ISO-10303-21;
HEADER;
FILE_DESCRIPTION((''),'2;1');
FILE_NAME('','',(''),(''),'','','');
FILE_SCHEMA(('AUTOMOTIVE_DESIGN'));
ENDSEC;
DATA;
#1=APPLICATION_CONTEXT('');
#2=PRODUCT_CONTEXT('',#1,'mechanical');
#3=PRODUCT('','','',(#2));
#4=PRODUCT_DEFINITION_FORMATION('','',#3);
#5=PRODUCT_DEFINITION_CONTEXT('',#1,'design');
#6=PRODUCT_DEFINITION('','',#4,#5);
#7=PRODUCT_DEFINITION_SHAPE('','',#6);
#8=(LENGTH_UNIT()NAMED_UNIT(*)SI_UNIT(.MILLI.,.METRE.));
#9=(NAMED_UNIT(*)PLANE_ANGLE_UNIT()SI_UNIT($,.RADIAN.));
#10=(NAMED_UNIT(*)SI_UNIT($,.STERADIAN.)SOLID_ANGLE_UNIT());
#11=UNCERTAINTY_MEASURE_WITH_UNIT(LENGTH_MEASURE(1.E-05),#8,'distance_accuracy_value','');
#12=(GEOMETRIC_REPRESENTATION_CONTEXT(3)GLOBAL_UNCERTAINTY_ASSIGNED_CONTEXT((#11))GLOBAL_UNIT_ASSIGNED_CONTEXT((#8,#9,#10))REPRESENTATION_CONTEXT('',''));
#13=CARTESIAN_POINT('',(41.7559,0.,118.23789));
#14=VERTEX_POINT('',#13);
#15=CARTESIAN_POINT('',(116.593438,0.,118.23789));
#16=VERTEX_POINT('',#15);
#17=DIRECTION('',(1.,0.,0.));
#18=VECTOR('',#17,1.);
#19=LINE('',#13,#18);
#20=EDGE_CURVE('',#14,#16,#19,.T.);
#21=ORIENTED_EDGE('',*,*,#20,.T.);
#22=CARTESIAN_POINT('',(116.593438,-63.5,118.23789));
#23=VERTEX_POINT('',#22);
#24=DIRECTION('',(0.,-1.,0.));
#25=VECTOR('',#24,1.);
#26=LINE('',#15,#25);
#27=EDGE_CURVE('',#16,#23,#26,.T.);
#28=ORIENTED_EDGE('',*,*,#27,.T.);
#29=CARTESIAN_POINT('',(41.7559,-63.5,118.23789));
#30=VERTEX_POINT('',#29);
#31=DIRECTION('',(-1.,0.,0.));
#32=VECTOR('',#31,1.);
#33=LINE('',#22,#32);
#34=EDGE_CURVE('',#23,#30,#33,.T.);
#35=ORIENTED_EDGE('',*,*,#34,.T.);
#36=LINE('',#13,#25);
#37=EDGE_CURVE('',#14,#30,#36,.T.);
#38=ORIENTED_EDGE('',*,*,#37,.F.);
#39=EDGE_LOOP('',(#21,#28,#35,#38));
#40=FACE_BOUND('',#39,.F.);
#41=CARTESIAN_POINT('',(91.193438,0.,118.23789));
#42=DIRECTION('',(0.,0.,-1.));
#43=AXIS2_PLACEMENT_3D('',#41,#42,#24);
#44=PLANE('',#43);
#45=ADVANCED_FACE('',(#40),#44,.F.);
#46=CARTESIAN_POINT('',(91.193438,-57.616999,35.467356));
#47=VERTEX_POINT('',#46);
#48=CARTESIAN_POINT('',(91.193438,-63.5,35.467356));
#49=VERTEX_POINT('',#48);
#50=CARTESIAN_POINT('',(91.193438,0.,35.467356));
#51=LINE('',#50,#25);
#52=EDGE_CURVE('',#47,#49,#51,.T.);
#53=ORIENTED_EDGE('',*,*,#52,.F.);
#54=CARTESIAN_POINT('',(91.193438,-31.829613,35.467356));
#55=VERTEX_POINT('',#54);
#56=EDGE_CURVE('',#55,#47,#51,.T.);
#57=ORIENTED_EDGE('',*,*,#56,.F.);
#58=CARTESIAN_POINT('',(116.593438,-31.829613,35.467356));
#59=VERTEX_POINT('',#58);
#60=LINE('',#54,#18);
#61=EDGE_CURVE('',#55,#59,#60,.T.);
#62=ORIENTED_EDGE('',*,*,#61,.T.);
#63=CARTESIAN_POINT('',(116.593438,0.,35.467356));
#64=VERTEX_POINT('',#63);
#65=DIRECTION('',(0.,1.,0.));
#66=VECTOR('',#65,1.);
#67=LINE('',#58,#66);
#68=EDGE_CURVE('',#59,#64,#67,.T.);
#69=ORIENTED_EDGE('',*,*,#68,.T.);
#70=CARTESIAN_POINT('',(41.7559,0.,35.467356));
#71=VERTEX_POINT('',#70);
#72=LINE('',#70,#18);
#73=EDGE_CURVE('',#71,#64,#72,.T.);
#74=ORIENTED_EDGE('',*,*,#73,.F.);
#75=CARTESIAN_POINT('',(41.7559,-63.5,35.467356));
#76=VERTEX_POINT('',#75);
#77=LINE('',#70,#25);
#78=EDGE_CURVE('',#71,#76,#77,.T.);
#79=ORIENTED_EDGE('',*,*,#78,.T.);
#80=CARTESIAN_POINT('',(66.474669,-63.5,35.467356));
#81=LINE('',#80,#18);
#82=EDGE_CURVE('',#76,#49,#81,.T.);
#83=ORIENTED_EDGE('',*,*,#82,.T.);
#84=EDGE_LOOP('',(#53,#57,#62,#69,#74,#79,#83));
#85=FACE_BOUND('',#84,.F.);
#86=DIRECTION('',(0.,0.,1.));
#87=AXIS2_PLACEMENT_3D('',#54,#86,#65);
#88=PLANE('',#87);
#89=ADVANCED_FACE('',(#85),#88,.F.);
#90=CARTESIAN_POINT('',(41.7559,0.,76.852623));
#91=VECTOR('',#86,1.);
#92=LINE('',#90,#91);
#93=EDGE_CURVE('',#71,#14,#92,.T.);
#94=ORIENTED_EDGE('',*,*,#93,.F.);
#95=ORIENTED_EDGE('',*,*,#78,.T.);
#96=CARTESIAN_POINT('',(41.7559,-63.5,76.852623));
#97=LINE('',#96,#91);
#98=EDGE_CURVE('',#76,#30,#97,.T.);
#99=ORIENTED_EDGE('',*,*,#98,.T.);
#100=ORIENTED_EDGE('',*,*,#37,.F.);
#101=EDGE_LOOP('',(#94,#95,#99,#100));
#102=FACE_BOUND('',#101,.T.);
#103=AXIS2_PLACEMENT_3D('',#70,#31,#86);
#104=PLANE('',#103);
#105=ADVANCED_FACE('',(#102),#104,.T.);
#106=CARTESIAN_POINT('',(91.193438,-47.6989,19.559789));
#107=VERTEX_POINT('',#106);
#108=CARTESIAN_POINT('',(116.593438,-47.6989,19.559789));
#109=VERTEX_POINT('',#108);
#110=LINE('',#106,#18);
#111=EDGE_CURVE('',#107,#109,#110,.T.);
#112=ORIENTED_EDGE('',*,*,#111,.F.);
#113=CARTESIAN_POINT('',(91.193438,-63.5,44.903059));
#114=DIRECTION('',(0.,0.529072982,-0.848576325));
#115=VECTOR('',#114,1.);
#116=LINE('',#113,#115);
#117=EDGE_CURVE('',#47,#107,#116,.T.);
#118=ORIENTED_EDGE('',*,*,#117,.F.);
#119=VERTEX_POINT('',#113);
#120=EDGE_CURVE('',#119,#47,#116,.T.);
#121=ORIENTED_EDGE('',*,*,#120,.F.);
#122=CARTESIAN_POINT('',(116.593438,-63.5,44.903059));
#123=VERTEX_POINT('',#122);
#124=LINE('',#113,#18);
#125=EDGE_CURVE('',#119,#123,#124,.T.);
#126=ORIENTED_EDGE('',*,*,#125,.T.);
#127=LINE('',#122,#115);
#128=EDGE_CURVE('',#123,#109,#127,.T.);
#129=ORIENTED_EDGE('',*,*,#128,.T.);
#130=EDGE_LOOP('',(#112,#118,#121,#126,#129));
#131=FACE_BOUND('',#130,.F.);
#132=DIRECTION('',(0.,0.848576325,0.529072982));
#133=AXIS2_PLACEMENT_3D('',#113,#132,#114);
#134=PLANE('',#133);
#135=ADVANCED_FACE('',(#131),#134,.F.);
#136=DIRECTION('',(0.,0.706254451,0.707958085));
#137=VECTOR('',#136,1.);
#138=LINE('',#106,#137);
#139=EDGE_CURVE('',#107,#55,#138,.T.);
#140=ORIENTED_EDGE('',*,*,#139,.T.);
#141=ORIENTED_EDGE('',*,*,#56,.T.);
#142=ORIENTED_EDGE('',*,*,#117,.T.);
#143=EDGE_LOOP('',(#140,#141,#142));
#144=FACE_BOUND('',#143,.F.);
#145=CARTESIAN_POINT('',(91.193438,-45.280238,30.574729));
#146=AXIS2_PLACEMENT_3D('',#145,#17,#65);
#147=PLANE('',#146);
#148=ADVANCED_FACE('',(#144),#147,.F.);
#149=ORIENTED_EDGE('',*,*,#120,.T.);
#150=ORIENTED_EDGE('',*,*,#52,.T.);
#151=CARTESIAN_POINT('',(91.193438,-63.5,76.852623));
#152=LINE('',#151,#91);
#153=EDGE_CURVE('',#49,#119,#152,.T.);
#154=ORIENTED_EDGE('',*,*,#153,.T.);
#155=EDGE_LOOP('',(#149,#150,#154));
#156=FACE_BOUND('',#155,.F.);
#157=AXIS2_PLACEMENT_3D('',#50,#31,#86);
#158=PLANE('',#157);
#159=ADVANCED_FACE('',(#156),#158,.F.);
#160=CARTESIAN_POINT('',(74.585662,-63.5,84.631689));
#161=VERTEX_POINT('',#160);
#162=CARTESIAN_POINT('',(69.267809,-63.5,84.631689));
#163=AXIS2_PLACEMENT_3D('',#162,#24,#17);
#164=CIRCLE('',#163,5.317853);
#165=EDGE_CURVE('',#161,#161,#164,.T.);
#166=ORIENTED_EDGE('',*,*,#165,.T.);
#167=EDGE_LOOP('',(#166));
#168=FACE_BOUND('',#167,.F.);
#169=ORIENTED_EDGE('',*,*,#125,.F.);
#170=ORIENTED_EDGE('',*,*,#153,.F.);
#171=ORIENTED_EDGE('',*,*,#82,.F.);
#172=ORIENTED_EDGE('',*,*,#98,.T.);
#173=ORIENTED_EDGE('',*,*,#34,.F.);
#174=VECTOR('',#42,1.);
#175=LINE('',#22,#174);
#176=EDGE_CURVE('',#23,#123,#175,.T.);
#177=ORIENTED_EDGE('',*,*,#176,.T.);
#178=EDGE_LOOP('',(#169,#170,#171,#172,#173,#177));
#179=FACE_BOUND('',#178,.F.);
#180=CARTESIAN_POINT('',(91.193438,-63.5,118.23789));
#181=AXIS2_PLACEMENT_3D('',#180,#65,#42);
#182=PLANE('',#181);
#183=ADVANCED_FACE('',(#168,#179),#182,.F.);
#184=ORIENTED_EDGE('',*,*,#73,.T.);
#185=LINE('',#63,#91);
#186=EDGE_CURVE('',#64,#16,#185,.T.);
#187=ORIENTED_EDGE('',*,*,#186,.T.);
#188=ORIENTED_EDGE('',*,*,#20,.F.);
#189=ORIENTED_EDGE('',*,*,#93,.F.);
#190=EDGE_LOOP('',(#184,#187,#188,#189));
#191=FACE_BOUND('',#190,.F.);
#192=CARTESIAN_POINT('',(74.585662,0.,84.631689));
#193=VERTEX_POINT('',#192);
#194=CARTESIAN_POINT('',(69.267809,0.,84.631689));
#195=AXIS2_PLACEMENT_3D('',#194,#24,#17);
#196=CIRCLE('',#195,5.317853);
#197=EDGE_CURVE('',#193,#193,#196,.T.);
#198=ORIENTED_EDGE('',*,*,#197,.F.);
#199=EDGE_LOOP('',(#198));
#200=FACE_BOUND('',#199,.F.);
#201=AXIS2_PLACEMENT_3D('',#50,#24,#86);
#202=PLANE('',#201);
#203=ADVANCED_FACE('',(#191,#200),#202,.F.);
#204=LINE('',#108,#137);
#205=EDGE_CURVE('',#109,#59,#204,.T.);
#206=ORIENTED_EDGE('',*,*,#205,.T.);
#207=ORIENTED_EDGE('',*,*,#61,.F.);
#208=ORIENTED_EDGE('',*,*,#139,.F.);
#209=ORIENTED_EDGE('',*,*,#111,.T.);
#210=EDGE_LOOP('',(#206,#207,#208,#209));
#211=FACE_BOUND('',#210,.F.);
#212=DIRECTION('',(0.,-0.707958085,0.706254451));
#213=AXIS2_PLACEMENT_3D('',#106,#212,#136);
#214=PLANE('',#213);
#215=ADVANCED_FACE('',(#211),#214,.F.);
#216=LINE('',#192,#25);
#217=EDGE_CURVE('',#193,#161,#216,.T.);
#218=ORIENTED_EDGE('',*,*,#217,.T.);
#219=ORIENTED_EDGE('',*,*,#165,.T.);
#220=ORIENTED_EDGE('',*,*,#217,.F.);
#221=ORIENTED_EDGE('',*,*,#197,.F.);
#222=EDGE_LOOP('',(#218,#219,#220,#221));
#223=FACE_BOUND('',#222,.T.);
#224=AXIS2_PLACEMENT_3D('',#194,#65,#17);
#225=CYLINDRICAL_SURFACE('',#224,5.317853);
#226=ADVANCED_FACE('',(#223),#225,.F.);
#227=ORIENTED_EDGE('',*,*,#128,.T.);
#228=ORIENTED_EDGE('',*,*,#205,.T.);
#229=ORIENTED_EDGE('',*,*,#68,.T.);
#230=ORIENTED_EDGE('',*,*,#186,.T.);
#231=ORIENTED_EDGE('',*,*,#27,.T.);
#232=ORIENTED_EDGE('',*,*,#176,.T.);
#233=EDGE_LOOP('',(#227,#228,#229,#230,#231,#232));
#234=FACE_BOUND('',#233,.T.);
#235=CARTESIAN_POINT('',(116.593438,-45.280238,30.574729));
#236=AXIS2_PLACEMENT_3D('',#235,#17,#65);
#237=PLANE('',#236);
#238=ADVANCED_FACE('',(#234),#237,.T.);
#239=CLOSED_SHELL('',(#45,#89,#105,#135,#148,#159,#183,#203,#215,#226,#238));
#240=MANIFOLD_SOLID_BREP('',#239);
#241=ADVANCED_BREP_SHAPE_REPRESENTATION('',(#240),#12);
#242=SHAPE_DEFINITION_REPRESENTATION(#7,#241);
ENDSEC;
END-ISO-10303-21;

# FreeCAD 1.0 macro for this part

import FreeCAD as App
import Part
import Sketcher

V = App.Vector
Q = App.Units.Quantity

doc = App.newDocument("Part")
params = doc.addObject("Spreadsheet::Sheet", "Params")
for row, (alias, value) in enumerate([
    ("pad1_length", "2.5 in"),
    ("sketch2_width", "2.5 in"),
    ("pad2_length", "1 in"),
], start=1):
    params.set(f"A{row}", alias)
    params.set(f"B{row}", "=" + value)
    params.setAlias(f"B{row}", alias)

body = doc.addObject("PartDesign::Body", "Body")

# Sketch on XZ plane
sketch1 = body.newObject("Sketcher::SketchObject", "Sketch")
sketch1.AttachmentSupport = (doc.getObject("XZ_Plane"), [""])
sketch1.MapMode = "FlatFace"
sketch1.addGeometry([
    Part.LineSegment(V(42, 118, 0), V(42, 35, 0)),  # 0
    Part.LineSegment(V(42, 35, 0), V(91, 35, 0)),  # 1
    Part.LineSegment(V(91, 35, 0), V(91, 118, 0)),  # 2
    Part.LineSegment(V(91, 118, 0), V(42, 118, 0)),  # 3
    Part.Circle(V(69, 85, 0), V(0, 0, 1), 5),  # 4
], False)
sketch1.addConstraint([
    Sketcher.Constraint("Coincident", 0, 2, 1, 1),
    Sketcher.Constraint("Coincident", 1, 2, 2, 1),
    Sketcher.Constraint("Coincident", 2, 2, 3, 1),
    Sketcher.Constraint("Coincident", 3, 2, 0, 1),
    Sketcher.Constraint("Vertical", 0),
    Sketcher.Constraint("Horizontal", 1),
    Sketcher.Constraint("Vertical", 2),
    Sketcher.Constraint("Horizontal", 3),
    Sketcher.Constraint("Diameter", 4, 10.635706),
    Sketcher.Constraint("DistanceX", -1, 1, 0, 2, 41.7559),
    Sketcher.Constraint("DistanceY", 4, 3, 2, 2, 33.606201),
    Sketcher.Constraint("DistanceX", 1, 1, 1, 2, 49.437538),
    Sketcher.Constraint("DistanceY", 0, 2, 0, 1, 82.770534),
    Sketcher.Constraint("DistanceX", -1, 1, 4, 3, 69.267809),
    Sketcher.Constraint("DistanceY", -1, 1, 4, 3, 84.631689),
])
pad1 = body.newObject("PartDesign::Pad", "Pad")
pad1.Profile = sketch1
pad1.setExpression("Length", "Params.pad1_length")

# Sketch on YZ plane
sketch2 = body.newObject("Sketcher::SketchObject", "Sketch001")
sketch2.AttachmentSupport = (doc.getObject("YZ_Plane"), [""])
sketch2.MapMode = "FlatFace"
sketch2.AttachmentOffset = App.Placement(V(0, 0, 91.193438), App.Rotation())
sketch2.addGeometry([
    Part.LineSegment(V(-48, 20, 0), V(-32, 35, 0)),  # 0
    Part.LineSegment(V(-32, 35, 0), V(0, 35, 0)),  # 1
    Part.LineSegment(V(0, 35, 0), V(0, 118, 0)),  # 2
    Part.LineSegment(V(0, 118, 0), V(-64, 118, 0)),  # 3
    Part.LineSegment(V(-64, 118, 0), V(-64, 45, 0)),  # 4
    Part.LineSegment(V(-64, 45, 0), V(-48, 20, 0)),  # 5
], False)
sketch2.addConstraint([
    Sketcher.Constraint("Coincident", 0, 2, 1, 1),
    Sketcher.Constraint("Coincident", 1, 2, 2, 1),
    Sketcher.Constraint("Coincident", 2, 2, 3, 1),
    Sketcher.Constraint("Coincident", 3, 2, 4, 1),
    Sketcher.Constraint("Coincident", 4, 2, 5, 1),
    Sketcher.Constraint("Coincident", 5, 2, 0, 1),
    Sketcher.Constraint("Horizontal", 1),
    Sketcher.Constraint("Vertical", 2),
    Sketcher.Constraint("Horizontal", 3),
    Sketcher.Constraint("Vertical", 4),
    Sketcher.Constraint("PointOnObject", 1, 2, -2),
    Sketcher.Constraint("DistanceX", 3, 2, 3, 1, Q("2.5 in")),
    Sketcher.Constraint("DistanceY", 4, 2, 4, 1, 73.334831),
    Sketcher.Constraint("DistanceX", 5, 2, -1, 1, 47.6989),
    Sketcher.Constraint("DistanceY", 5, 2, 3, 2, 98.678101),
    Sketcher.Constraint("DistanceX", 1, 1, 1, 2, 31.829613),
    Sketcher.Constraint("DistanceY", 2, 1, 2, 2, 82.770534),
    Sketcher.Constraint("DistanceY", -1, 1, 2, 2, 118.23789),
])
sketch2.setExpression("Constraints[11]", "Params.sketch2_width")
pad2 = body.newObject("PartDesign::Pad", "Pad001")
pad2.Profile = sketch2
pad2.setExpression("Length", "Params.pad2_length")

doc.recompute()
